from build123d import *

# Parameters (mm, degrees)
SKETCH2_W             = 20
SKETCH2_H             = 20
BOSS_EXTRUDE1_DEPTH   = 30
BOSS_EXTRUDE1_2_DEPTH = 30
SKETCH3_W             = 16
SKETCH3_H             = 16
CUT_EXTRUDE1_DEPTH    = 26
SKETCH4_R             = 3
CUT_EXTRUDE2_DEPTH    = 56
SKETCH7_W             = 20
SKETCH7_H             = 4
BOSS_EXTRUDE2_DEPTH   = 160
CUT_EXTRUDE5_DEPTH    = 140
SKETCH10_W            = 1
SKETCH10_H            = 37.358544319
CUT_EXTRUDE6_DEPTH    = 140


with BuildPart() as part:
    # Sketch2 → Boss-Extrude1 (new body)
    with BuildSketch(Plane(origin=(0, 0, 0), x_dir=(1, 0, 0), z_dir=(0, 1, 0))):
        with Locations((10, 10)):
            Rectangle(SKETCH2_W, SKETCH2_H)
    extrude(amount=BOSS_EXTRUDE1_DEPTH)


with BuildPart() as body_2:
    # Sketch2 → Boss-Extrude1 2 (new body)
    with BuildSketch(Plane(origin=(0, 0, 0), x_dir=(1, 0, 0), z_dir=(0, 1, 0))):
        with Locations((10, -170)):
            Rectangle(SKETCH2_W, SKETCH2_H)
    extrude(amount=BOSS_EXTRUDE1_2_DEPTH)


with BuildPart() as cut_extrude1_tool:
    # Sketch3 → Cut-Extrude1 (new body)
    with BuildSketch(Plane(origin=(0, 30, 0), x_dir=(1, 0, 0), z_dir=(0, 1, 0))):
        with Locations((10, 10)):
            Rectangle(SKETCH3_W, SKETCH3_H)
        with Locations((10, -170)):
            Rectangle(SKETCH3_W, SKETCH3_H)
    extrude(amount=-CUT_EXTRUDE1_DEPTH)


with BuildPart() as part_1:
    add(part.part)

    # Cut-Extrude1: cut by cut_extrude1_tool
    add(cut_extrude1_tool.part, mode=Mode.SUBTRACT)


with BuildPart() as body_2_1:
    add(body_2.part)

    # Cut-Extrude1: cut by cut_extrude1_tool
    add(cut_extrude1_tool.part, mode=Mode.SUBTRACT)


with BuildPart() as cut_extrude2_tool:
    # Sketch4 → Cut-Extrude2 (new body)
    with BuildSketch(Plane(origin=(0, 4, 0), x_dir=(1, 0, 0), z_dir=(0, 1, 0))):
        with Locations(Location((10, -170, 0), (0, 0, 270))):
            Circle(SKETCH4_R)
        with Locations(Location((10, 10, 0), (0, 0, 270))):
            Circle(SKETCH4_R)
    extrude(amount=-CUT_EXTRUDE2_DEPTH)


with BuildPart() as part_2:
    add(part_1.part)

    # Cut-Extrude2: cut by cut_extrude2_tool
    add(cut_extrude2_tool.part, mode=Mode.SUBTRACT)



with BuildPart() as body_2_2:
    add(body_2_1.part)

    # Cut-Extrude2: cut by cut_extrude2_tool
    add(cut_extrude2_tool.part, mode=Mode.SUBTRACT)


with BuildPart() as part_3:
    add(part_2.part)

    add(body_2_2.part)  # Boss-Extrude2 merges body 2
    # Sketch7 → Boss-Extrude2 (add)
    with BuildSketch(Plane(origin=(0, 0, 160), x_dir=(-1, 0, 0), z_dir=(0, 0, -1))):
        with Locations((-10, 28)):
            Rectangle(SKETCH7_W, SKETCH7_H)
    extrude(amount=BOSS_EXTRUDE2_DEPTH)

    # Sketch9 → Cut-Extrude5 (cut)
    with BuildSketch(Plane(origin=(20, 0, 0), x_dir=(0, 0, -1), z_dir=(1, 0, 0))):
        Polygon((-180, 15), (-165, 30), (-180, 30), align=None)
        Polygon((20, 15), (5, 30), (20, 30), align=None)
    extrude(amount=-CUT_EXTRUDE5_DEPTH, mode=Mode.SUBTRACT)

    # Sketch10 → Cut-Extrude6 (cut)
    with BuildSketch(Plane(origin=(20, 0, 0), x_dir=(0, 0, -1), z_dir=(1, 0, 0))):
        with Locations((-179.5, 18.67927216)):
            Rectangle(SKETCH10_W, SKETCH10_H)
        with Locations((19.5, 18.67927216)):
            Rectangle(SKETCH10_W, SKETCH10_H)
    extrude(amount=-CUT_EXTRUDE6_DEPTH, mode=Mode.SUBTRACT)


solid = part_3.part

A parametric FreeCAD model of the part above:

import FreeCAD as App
import Part
import Sketcher
from FreeCAD import Vector
Q = App.Units.Quantity


def add_polygon(sketch, points):
    """Adds a closed chain of lines whose ends are joined by coincident constraints."""
    first, n = sketch.GeometryCount, len(points)
    for a, b in zip(points, points[1:] + points[:1]):
        sketch.addGeometry(Part.LineSegment(App.Vector(*a, 0), App.Vector(*b, 0)), False)
    for i in range(n):
        sketch.addConstraint(Sketcher.Constraint("Coincident", first + i, 2, first + (i + 1) % n, 1))

doc = App.newDocument("Part")
body = doc.addObject("PartDesign::Body", "Body")

# Sketch on XZ plane
sketch1 = body.newObject("Sketcher::SketchObject", "Sketch")
sketch1.AttachmentSupport = (doc.getObject("XZ_Plane"), [""])
sketch1.MapMode = "FlatFace"
add_polygon(sketch1, [(0, -20), (0, 0), (20, 0), (20, -20)])  # lines 0-3
sketch1.addConstraint([
    Sketcher.Constraint("Vertical", 0),
    Sketcher.Constraint("Horizontal", 1),
    Sketcher.Constraint("Vertical", 2),
    Sketcher.Constraint("Horizontal", 3),
    Sketcher.Constraint("Coincident", 0, 2, -1, 1),
    Sketcher.Constraint("Equal", 3, 0),
    Sketcher.Constraint("DistanceX", 1, 1, 1, 2, Q("20 mm")),
])
pad1 = body.newObject("PartDesign::Pad", "Pad")
pad1.Profile = sketch1
pad1.Length = 30
pad1.Reversed = True
body2 = doc.addObject("PartDesign::Body", "Body001")

# Sketch on XZ plane
sketch2 = body2.newObject("Sketcher::SketchObject", "Sketch001")
sketch2.AttachmentSupport = (doc.getObject("XZ_Plane001"), [""])
sketch2.MapMode = "FlatFace"
add_polygon(sketch2, [(0, 160), (0, 180), (20, 180), (20, 160)])  # lines 0-3
sketch2.addConstraint([
    Sketcher.Constraint("Vertical", 0),
    Sketcher.Constraint("Horizontal", 1),
    Sketcher.Constraint("Vertical", 2),
    Sketcher.Constraint("Horizontal", 3),
    Sketcher.Constraint("PointOnObject", 0, 2, -2),
    Sketcher.Constraint("Equal", 3, 0),
    Sketcher.Constraint("DistanceX", 1, 1, 1, 2, Q("20 mm")),
    Sketcher.Constraint("DistanceY", -1, 1, 0, 2, Q("180 mm")),
])
pad2 = body2.newObject("PartDesign::Pad", "Pad001")
pad2.Profile = sketch2
pad2.Length = 30
pad2.Reversed = True
body3 = doc.addObject("PartDesign::Body", "Body002")
body3.AllowCompound = True

# Sketch on XZ plane
sketch3 = body3.newObject("Sketcher::SketchObject", "Sketch002")
sketch3.AttachmentSupport = (doc.getObject("XZ_Plane002"), [""])
sketch3.MapMode = "FlatFace"
sketch3.AttachmentOffset = App.Placement(Vector(0, 0, -30), App.Rotation())
add_polygon(sketch3, [(2, -18), (2, -2), (18, -2), (18, -18)])  # lines 0-3
add_polygon(sketch3, [(2, 162), (2, 178), (18, 178), (18, 162)])  # lines 4-7
sketch3.addConstraint([
    Sketcher.Constraint("Vertical", 0),
    Sketcher.Constraint("Horizontal", 1),
    Sketcher.Constraint("Vertical", 2),
    Sketcher.Constraint("Horizontal", 3),
    Sketcher.Constraint("Vertical", 4),
    Sketcher.Constraint("Horizontal", 5),
    Sketcher.Constraint("Vertical", 6),
    Sketcher.Constraint("Horizontal", 7),
    Sketcher.Constraint("Vertical", 3, 2, 4, 2),
    Sketcher.Constraint("Vertical", 2, 2, 5, 2),
    Sketcher.Constraint("Equal", 7, 0),
    Sketcher.Constraint("Equal", 2, 4),
    Sketcher.Constraint("DistanceX", 1, 1, 1, 2, Q("16 mm")),
    Sketcher.Constraint("DistanceX", -1, 1, 0, 2, Q("2 mm")),
    Sketcher.Constraint("DistanceY", 0, 2, -1, 1, Q("2 mm")),
    Sketcher.Constraint("DistanceY", -1, 1, 4, 2, Q("178 mm")),
])
pad3 = body3.newObject("PartDesign::Pad", "Pad002")
pad3.Profile = sketch3
pad3.Length = 26
doc.recompute()

body4 = doc.addObject("PartDesign::Body", "Body003")
body4.BaseFeature = body3
boolean = body.newObject("PartDesign::Boolean", "Boolean")
boolean.Type = "Cut"
boolean.addObjects([body4])
doc.recompute()

boolean2 = body2.newObject("PartDesign::Boolean", "Boolean001")
boolean2.Type = "Cut"
boolean2.addObjects([body3])
body5 = doc.addObject("PartDesign::Body", "Body004")
body5.AllowCompound = True

# Sketch on XZ plane
sketch4 = body5.newObject("Sketcher::SketchObject", "Sketch003")
sketch4.AttachmentSupport = (doc.getObject("XZ_Plane004"), [""])
sketch4.MapMode = "FlatFace"
sketch4.AttachmentOffset = App.Placement(Vector(0, 0, -4), App.Rotation())
sketch4.addGeometry([
    Part.Circle(Vector(10, 170, 0), Vector(0, 0, 1), 3),
    Part.Circle(Vector(10, -10, 0), Vector(0, 0, 1), 3),
], False)
sketch4.addConstraint([
    Sketcher.Constraint("Equal", 0, 1),
    Sketcher.Constraint("Vertical", 0, 3, 1, 3),
    Sketcher.Constraint("Diameter", 0, Q("6 mm")),
    Sketcher.Constraint("DistanceX", -1, 1, 0, 3, Q("10 mm")),
    Sketcher.Constraint("DistanceY", -1, 1, 0, 3, Q("170 mm")),
    Sketcher.Constraint("DistanceY", 1, 3, -1, 1, Q("10 mm")),
])
pad4 = body5.newObject("PartDesign::Pad", "Pad003")
pad4.Profile = sketch4
pad4.Length = 56
doc.recompute()

body6 = doc.addObject("PartDesign::Body", "Body005")
body6.BaseFeature = body5
boolean3 = body.newObject("PartDesign::Boolean", "Boolean002")
boolean3.Type = "Cut"
boolean3.addObjects([body6])
doc.recompute()

boolean4 = body2.newObject("PartDesign::Boolean", "Boolean003")
boolean4.Type = "Cut"
boolean4.addObjects([body5])
body.AllowCompound = True
doc.recompute()

boolean5 = body.newObject("PartDesign::Boolean", "Boolean004")
boolean5.Type = "Fuse"
boolean5.addObjects([body2])

# Sketch on XY plane
sketch5 = body.newObject("Sketcher::SketchObject", "Sketch004")
sketch5.AttachmentSupport = (doc.getObject("XY_Plane"), [""])
sketch5.MapMode = "FlatFace"
sketch5.AttachmentOffset = App.Placement(Vector(0, 0, 160), App.Rotation())
add_polygon(sketch5, [(20, 30), (20, 26), (0, 26), (0, 30)])  # lines 0-3
sketch5.addConstraint([
    Sketcher.Constraint("Vertical", 0),
    Sketcher.Constraint("Horizontal", 1),
    Sketcher.Constraint("Vertical", 2),
    Sketcher.Constraint("Horizontal", 3),
    Sketcher.Constraint("PointOnObject", 1, 2, -2),
    Sketcher.Constraint("DistanceX", 1, 2, 1, 1, Q("20 mm")),
    Sketcher.Constraint("DistanceY", 0, 2, 0, 1, Q("4 mm")),
    Sketcher.Constraint("DistanceY", -1, 1, 0, 2, Q("26 mm")),
])
pad5 = body.newObject("PartDesign::Pad", "Pad004")
pad5.Profile = sketch5
pad5.Length = 160
pad5.Reversed = True

# Sketch on YZ plane
sketch6 = body.newObject("Sketcher::SketchObject", "Sketch005")
sketch6.AttachmentSupport = (doc.getObject("YZ_Plane"), [""])
sketch6.MapMode = "FlatFace"
sketch6.AttachmentOffset = App.Placement(Vector(0, 0, 20), App.Rotation())
add_polygon(sketch6, [(15, 180), (30, 165), (30, 180)])  # lines 0-2
add_polygon(sketch6, [(30, -5), (15, -20), (30, -20)])  # lines 3-5
sketch6.addConstraint([
    Sketcher.Constraint("Vertical", 1),
    Sketcher.Constraint("Horizontal", 2),
    Sketcher.Constraint("Horizontal", 4),
    Sketcher.Constraint("Vertical", 5),
    Sketcher.Constraint("Perpendicular", 0, 3),
    Sketcher.Constraint("Vertical", 2, 2, 3, 2),
    Sketcher.Constraint("Vertical", 1, 2, 4, 2),
    Sketcher.Constraint("Equal", 4, 1),
    Sketcher.Constraint("DistanceX", 2, 2, 2, 1, Q("15 mm")),
    Sketcher.Constraint("DistanceX", -1, 1, 0, 2, Q("30 mm")),
    Sketcher.Constraint("DistanceY", -1, 1, 0, 2, Q("165 mm")),
    Sketcher.Constraint("DistanceY", 3, 2, -1, 1, Q("20 mm")),
])
pocket1 = body.newObject("PartDesign::Pocket", "Pocket")
pocket1.Profile = sketch6
pocket1.Length = 140

# Sketch on YZ plane
sketch7 = body.newObject("Sketcher::SketchObject", "Sketch006")
sketch7.AttachmentSupport = (doc.getObject("YZ_Plane"), [""])
sketch7.MapMode = "FlatFace"
sketch7.AttachmentOffset = App.Placement(Vector(0, 0, 20), App.Rotation())
add_polygon(sketch7, [(37.4, 180), (0, 180), (0, 179), (37.4, 179)])  # lines 0-3
add_polygon(sketch7, [(37.4, -19), (0, -19), (0, -20), (37.4, -20)])  # lines 4-7
sketch7.addConstraint([
    Sketcher.Constraint("Horizontal", 0),
    Sketcher.Constraint("Vertical", 1),
    Sketcher.Constraint("Horizontal", 2),
    Sketcher.Constraint("Vertical", 3),
    Sketcher.Constraint("Horizontal", 4),
    Sketcher.Constraint("Vertical", 5),
    Sketcher.Constraint("Horizontal", 6),
    Sketcher.Constraint("Vertical", 7),
    Sketcher.Constraint("PointOnObject", 0, 2, -2),
    Sketcher.Constraint("PointOnObject", 4, 2, -2),
    Sketcher.Constraint("Vertical", 3, 2, 6, 2),
    Sketcher.Constraint("Equal", 3, 5),
    Sketcher.Constraint("DistanceY", 1, 2, 1, 1, Q("1 mm")),
    Sketcher.Constraint("DistanceY", -1, 1, 0, 2, Q("180 mm")),
    Sketcher.Constraint("DistanceY", 4, 2, -1, 1, Q("19 mm")),
    Sketcher.Constraint("DistanceX", 0, 2, 0, 1, Q("37.358544 mm")),
])
pocket2 = body.newObject("PartDesign::Pocket", "Pocket001")
pocket2.Profile = sketch7
pocket2.Length = 140

doc.recompute()
